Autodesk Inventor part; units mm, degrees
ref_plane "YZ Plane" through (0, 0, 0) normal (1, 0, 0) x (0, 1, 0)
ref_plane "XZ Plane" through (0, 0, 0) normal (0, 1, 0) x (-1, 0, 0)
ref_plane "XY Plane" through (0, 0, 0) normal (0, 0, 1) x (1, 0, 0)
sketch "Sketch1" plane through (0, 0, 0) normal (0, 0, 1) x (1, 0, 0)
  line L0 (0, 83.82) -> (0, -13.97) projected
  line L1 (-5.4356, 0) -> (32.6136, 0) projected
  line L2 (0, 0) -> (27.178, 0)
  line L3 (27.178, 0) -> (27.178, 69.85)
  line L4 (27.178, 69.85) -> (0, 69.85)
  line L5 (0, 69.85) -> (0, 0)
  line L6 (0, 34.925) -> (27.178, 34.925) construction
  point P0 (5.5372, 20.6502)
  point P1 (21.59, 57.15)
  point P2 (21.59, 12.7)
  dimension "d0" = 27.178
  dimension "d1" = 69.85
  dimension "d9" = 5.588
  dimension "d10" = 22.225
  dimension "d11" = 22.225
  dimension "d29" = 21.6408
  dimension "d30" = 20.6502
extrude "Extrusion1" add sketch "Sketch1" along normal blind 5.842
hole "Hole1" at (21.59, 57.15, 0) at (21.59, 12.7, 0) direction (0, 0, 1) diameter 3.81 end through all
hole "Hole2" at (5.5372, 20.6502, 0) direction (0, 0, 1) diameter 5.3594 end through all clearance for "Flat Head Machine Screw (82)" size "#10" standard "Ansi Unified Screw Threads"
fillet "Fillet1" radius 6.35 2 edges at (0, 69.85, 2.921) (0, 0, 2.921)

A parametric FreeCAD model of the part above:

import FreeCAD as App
import Part
import Sketcher
Q = App.Units.Quantity


def edges_at(feature, points):
    """Names of the edges that pass closest to the given points."""
    edges = feature.Shape.Edges
    near = lambda p: min(range(len(edges)), key=lambda i: edges[i].distToShape(Part.Vertex(*p))[0])
    return sorted({f"Edge{near(p) + 1}" for p in points})

doc = App.newDocument("Part")
body = doc.addObject("PartDesign::Body", "Body")

# Sketch on XY plane
sketch1 = doc.addObject("Sketcher::SketchObject", "Sketch")
body.addObject(sketch1)
sketch1.AttachmentSupport = (doc.XY_Plane, [""])
sketch1.MapMode = "FlatFace"
sketch1.addGeometry(Part.LineSegment(App.Vector(27, 70, 0), App.Vector(0, 70, 0)), False)
sketch1.addGeometry(Part.LineSegment(App.Vector(0, 70, 0), App.Vector(0, 0, 0)), False)
sketch1.addGeometry(Part.LineSegment(App.Vector(0, 0, 0), App.Vector(27, 0, 0)), False)
sketch1.addGeometry(Part.LineSegment(App.Vector(27, 0, 0), App.Vector(27, 70, 0)), False)
sketch1.addConstraint(Sketcher.Constraint("Coincident", 0, 2, 1, 1))
sketch1.addConstraint(Sketcher.Constraint("Coincident", 1, 2, 2, 1))
sketch1.addConstraint(Sketcher.Constraint("Coincident", 2, 2, 3, 1))
sketch1.addConstraint(Sketcher.Constraint("Coincident", 3, 2, 0, 1))
sketch1.addConstraint(Sketcher.Constraint("Horizontal", 0))
sketch1.addConstraint(Sketcher.Constraint("Vertical", 1))
sketch1.addConstraint(Sketcher.Constraint("Horizontal", 2))
sketch1.addConstraint(Sketcher.Constraint("Vertical", 3))
sketch1.addConstraint(Sketcher.Constraint("Coincident", 1, 2, -1, 1))
sketch1.addConstraint(Sketcher.Constraint("DistanceX", 0, 2, 0, 1, Q("1.07 in")))
sketch1.addConstraint(Sketcher.Constraint("DistanceY", 1, 2, 1, 1, Q("2.75 in")))
pad1 = doc.addObject("PartDesign::Pad", "Pad")
body.addObject(pad1)
pad1.Profile = sketch1
pad1.Length = Q("0.23 in")

# Sketch on XY plane
sketch2 = doc.addObject("Sketcher::SketchObject", "Sketch001")
body.addObject(sketch2)
sketch2.AttachmentSupport = (doc.XY_Plane, [""])
sketch2.MapMode = "FlatFace"
sketch2.addGeometry(Part.Circle(App.Vector(21.6, 57.1, 0), App.Vector(0, 0, 1), 1.9), False)
sketch2.addGeometry(Part.Circle(App.Vector(21.6, 12.7, 0), App.Vector(0, 0, 1), 1.9), False)
sketch2.addConstraint(Sketcher.Constraint("Equal", 0, 1))
sketch2.addConstraint(Sketcher.Constraint("Vertical", 0, 3, 1, 3))
sketch2.addConstraint(Sketcher.Constraint("Diameter", 0, Q("0.15 in")))
sketch2.addConstraint(Sketcher.Constraint("DistanceY", -1, 1, 1, 3, Q("0.5 in")))
sketch2.addConstraint(Sketcher.Constraint("DistanceX", -1, 1, 0, 3, Q("0.85 in")))
sketch2.addConstraint(Sketcher.Constraint("DistanceY", -1, 1, 0, 3, Q("2.25 in")))
doc.recompute()
hole = doc.addObject("PartDesign::Hole", "Hole")
body.addObject(hole)
hole.Profile = sketch2
hole.ThreadType = "None"
hole.Diameter = Q("0.15 in")
hole.DepthType = "ThroughAll"
hole.Reversed = True

# Sketch on XY plane
sketch3 = doc.addObject("Sketcher::SketchObject", "Sketch002")
body.addObject(sketch3)
sketch3.AttachmentSupport = (doc.XY_Plane, [""])
sketch3.MapMode = "FlatFace"
sketch3.addGeometry(Part.Circle(App.Vector(5.5, 20.7, 0), App.Vector(0, 0, 1), 2.7), False)
sketch3.addConstraint(Sketcher.Constraint("Diameter", 0, Q("0.211 in")))
sketch3.addConstraint(Sketcher.Constraint("DistanceX", -1, 1, 0, 3, Q("0.218 in")))
sketch3.addConstraint(Sketcher.Constraint("DistanceY", -1, 1, 0, 3, Q("0.813 in")))
doc.recompute()
hole2 = doc.addObject("PartDesign::Hole", "Hole001")
body.addObject(hole2)
hole2.Profile = sketch3
hole2.ThreadType = "None"
hole2.Diameter = Q("0.211 in")
hole2.DepthType = "ThroughAll"
hole2.Reversed = True
doc.recompute()

fillet = doc.addObject("PartDesign::Fillet", "Fillet")
body.addObject(fillet)
fillet.Base = (hole2, edges_at(hole2, [(0, 69.85, 2.921), (0, 0, 2.921)]))
fillet.Radius = Q("0.25 in")

doc.recompute()
